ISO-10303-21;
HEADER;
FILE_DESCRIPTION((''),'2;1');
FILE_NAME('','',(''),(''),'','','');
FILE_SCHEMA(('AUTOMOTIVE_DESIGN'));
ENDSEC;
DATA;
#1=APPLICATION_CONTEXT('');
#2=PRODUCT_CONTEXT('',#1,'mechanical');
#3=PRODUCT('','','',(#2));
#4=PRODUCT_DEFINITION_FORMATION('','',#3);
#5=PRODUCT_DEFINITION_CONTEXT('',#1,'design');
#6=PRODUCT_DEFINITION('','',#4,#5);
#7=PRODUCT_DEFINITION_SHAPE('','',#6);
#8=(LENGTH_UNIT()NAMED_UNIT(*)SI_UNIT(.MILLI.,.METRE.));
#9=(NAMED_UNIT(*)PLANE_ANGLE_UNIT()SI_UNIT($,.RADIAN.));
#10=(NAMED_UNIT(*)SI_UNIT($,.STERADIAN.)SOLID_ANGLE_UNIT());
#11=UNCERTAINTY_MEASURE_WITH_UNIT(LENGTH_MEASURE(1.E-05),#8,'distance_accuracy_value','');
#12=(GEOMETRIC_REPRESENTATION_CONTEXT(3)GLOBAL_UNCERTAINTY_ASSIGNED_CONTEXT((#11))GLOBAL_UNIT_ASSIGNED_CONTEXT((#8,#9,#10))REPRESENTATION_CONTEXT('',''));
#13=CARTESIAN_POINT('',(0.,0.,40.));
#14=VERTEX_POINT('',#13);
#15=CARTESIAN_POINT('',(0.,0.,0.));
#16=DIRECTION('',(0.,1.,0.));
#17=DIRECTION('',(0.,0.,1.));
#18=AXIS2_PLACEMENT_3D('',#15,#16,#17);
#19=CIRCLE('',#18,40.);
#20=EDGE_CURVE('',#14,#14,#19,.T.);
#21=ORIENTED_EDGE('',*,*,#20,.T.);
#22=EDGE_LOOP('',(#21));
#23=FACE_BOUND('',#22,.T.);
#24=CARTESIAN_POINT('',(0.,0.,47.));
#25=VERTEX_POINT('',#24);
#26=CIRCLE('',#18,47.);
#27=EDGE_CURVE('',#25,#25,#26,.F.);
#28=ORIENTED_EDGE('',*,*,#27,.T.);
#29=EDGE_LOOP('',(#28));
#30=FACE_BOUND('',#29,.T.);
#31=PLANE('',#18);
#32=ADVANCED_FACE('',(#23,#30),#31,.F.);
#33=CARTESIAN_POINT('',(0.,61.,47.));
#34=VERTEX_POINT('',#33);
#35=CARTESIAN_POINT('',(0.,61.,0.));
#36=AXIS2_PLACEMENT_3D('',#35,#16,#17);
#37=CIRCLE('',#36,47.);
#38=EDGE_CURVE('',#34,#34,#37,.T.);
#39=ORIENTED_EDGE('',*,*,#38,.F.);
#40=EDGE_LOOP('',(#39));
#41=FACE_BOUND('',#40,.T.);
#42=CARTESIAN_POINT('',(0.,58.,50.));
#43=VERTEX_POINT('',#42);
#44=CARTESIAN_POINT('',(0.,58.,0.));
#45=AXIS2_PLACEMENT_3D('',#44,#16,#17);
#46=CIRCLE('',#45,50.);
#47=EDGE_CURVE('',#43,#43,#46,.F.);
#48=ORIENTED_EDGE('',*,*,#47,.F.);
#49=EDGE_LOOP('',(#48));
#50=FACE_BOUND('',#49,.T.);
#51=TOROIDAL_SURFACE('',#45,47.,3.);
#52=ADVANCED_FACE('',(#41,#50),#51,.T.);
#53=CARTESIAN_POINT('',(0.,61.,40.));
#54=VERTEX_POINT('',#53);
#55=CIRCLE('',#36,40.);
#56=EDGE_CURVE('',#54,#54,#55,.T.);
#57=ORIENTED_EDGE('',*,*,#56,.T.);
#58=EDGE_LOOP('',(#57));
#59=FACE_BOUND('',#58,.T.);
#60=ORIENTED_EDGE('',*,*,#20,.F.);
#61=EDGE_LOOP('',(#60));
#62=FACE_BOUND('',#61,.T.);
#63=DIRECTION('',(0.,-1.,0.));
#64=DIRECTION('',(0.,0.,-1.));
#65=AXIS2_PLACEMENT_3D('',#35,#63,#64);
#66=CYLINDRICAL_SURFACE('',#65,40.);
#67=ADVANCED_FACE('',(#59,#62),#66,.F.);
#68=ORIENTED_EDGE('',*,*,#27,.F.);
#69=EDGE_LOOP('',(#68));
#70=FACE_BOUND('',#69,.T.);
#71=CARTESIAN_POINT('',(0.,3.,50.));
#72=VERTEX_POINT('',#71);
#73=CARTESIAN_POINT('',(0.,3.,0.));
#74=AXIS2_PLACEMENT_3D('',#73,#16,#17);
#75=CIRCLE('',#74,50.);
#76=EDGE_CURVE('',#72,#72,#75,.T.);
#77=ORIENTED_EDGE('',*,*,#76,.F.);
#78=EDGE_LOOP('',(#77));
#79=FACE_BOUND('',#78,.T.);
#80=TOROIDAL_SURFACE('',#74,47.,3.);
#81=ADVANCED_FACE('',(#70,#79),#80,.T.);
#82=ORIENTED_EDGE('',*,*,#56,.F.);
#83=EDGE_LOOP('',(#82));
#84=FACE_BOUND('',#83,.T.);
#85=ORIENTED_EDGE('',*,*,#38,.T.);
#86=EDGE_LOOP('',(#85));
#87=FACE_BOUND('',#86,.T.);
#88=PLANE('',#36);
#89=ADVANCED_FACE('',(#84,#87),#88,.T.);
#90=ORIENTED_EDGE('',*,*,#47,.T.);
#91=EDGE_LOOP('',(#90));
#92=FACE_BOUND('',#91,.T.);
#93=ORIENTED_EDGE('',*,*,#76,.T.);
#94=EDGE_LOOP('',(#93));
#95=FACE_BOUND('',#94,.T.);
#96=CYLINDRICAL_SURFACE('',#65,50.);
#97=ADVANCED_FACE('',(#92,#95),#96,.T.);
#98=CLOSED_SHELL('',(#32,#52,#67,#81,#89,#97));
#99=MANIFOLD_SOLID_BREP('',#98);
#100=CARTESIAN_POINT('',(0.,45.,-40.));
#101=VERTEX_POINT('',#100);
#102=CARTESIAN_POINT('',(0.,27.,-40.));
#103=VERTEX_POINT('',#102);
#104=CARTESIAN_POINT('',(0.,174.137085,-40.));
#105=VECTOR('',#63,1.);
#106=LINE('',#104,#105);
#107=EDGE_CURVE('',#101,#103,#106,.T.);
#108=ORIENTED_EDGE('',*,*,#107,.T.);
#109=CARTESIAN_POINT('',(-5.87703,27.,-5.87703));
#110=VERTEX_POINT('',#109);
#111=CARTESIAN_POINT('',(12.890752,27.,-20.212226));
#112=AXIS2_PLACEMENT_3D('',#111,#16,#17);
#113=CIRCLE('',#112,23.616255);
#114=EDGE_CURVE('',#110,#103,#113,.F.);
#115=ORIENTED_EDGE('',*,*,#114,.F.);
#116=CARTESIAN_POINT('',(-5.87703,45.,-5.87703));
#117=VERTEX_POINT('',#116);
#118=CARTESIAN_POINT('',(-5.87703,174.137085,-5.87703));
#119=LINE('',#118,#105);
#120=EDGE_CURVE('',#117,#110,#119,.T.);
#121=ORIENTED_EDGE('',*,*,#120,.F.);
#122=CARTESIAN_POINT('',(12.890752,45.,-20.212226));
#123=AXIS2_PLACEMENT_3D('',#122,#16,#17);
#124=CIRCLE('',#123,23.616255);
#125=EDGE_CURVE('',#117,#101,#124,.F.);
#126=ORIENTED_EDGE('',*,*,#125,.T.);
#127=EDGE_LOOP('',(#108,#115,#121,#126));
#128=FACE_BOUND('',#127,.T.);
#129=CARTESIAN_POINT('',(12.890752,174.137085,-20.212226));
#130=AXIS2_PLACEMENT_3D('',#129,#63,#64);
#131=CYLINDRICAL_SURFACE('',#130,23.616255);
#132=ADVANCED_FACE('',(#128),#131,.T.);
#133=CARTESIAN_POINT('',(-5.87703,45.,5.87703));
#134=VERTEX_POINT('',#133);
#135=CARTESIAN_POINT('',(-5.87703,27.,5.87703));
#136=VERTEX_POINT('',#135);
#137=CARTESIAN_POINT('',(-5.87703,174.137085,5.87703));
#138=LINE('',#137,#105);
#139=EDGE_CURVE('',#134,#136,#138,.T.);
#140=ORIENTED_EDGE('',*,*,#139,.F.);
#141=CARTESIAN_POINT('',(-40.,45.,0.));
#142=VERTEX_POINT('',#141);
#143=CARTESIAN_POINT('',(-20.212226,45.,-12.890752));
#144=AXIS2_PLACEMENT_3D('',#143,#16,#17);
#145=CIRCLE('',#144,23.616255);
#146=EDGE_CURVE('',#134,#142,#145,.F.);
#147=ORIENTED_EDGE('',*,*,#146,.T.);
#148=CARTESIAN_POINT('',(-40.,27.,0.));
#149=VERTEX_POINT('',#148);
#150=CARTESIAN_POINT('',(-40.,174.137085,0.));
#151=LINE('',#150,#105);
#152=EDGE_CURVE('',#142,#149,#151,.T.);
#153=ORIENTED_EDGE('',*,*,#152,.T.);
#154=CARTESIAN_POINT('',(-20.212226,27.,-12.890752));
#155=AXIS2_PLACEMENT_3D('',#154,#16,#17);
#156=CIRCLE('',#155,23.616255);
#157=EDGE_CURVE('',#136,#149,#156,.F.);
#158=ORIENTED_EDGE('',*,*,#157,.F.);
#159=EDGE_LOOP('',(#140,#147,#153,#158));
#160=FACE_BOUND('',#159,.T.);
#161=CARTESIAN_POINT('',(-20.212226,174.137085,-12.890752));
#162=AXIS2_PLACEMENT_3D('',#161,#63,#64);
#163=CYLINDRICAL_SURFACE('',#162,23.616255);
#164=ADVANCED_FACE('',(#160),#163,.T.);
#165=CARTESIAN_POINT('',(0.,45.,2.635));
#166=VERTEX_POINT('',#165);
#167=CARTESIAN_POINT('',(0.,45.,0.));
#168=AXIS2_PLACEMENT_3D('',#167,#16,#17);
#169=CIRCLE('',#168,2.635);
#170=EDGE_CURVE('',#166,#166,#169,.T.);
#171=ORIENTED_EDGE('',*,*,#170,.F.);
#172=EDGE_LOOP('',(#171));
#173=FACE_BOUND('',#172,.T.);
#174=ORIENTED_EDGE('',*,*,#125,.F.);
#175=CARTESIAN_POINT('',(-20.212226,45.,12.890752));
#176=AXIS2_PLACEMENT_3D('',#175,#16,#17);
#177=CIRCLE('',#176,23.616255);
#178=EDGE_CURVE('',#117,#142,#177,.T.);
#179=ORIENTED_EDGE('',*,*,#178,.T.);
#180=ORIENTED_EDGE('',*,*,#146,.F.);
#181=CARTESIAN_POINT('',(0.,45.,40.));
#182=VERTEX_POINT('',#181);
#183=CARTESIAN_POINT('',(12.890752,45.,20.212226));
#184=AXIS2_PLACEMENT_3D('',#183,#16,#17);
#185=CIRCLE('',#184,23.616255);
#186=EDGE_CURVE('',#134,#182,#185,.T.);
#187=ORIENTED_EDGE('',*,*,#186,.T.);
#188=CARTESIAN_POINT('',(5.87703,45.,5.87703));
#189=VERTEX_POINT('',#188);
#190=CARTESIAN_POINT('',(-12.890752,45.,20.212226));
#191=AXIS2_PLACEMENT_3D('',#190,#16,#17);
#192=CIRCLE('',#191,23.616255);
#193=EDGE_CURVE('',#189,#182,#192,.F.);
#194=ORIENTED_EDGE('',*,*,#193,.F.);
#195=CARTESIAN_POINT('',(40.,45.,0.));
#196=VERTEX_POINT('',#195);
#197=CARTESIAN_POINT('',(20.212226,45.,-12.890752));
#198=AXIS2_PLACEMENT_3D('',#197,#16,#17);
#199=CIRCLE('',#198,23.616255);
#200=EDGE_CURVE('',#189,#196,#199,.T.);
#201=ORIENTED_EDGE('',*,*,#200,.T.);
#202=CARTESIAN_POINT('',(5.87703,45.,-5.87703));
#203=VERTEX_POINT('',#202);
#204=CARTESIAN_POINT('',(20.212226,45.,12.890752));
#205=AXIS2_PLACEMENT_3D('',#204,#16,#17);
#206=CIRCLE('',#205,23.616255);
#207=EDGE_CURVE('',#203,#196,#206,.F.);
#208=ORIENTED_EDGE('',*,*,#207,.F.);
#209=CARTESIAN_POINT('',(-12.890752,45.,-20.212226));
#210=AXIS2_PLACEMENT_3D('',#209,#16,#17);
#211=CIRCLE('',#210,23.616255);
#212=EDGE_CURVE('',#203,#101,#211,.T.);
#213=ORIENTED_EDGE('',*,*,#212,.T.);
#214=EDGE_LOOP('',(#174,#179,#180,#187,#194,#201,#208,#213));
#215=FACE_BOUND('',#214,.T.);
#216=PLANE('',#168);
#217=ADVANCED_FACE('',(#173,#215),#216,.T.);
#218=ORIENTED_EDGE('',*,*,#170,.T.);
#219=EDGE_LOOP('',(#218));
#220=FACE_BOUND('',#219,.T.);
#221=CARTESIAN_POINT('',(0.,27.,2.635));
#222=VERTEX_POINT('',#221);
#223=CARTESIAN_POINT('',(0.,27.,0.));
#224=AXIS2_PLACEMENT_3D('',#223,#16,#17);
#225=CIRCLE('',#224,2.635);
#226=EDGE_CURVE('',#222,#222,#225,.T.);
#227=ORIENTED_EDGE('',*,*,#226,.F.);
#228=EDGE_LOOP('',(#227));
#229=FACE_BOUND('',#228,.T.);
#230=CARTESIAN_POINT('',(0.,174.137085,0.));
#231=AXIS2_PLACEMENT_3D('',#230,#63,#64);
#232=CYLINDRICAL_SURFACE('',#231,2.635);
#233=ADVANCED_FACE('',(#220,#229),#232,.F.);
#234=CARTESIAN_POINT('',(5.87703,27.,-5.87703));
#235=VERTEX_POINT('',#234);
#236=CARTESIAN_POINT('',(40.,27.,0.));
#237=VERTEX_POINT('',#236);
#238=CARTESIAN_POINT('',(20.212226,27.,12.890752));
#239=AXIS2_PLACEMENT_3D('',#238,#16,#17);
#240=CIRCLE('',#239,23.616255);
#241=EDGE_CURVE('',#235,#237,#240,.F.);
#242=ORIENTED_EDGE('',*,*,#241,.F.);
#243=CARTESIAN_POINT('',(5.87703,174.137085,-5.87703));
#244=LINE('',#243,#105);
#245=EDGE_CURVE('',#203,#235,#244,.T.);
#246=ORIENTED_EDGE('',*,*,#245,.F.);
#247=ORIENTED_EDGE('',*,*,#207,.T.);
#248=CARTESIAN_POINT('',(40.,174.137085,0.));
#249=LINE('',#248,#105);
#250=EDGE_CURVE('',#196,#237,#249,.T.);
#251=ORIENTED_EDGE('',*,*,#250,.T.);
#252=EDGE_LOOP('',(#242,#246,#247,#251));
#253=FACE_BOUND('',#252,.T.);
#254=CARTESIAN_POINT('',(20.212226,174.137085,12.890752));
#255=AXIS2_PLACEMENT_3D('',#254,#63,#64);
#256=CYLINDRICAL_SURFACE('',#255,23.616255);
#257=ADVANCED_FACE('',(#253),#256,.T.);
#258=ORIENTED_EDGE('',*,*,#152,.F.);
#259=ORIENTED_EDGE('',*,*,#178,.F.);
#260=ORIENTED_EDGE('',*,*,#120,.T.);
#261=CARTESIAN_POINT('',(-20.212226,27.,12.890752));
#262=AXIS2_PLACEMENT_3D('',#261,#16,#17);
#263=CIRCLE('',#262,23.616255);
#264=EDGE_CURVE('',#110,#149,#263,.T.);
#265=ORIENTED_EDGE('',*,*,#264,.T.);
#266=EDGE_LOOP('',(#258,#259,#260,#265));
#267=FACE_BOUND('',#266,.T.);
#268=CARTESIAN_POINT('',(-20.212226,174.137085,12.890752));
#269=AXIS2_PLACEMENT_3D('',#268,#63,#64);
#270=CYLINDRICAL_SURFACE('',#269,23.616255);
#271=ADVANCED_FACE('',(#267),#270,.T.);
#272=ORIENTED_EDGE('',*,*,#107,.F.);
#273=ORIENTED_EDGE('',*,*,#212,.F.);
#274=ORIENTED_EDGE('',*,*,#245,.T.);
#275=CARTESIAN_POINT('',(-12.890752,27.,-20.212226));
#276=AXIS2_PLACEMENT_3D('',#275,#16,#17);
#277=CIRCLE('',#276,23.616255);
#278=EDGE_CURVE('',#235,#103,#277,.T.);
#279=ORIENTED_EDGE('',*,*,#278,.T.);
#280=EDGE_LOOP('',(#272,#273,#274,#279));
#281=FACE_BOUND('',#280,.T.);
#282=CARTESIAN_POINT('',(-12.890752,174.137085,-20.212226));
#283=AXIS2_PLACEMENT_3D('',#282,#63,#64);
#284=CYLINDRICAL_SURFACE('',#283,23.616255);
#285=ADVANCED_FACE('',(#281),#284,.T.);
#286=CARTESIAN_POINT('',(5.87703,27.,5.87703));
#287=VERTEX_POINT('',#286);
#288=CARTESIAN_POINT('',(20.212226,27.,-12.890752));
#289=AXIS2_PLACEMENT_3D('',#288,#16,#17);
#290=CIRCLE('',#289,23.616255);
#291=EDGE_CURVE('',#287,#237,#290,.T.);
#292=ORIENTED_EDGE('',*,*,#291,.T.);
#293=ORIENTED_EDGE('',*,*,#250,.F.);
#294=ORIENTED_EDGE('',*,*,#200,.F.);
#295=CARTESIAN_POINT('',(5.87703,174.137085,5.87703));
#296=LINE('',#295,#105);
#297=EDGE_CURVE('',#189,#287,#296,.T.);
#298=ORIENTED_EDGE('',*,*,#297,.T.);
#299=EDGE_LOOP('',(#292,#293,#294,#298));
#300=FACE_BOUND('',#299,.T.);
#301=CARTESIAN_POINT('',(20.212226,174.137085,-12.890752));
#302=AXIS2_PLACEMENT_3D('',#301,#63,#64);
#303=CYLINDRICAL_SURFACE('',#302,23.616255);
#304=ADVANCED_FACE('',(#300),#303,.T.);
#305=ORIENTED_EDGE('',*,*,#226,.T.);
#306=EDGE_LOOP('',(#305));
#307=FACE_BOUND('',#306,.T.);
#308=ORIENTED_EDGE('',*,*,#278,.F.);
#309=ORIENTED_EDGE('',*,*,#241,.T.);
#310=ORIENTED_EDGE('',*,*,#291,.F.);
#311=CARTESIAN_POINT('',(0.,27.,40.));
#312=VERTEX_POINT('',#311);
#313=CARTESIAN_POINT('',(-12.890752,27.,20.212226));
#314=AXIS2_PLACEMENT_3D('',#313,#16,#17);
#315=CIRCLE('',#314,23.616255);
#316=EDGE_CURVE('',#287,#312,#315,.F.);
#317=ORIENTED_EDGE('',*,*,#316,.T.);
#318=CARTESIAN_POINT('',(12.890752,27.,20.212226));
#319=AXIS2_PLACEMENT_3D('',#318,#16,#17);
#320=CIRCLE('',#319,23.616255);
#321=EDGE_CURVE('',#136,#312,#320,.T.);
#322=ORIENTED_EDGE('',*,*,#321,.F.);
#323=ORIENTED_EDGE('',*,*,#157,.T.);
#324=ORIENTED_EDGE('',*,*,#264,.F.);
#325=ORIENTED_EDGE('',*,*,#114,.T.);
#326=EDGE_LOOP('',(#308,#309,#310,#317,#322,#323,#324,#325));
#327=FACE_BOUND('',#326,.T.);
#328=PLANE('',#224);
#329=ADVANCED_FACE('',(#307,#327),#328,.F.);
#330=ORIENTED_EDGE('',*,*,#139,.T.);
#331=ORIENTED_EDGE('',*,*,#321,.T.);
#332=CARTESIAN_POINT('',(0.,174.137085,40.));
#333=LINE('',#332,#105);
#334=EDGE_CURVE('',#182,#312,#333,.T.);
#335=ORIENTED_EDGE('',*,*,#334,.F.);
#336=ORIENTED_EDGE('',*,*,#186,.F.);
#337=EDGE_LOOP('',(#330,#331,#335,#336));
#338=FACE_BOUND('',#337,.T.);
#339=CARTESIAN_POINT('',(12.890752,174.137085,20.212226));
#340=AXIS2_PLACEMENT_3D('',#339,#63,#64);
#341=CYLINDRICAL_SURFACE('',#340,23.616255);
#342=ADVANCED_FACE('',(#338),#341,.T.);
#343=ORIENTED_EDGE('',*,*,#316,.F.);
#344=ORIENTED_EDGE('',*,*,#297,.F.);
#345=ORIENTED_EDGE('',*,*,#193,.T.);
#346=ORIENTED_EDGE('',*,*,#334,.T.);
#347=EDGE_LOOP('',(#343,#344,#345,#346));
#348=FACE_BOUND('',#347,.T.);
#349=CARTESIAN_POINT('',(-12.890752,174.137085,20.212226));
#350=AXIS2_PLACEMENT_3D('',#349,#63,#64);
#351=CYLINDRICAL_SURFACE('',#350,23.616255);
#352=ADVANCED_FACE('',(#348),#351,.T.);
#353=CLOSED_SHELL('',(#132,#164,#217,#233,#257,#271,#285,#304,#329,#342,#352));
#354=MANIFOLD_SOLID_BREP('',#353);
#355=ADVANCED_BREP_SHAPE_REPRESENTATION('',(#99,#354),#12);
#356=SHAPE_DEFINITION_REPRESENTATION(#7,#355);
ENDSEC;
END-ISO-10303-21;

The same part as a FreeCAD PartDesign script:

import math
import FreeCAD as App
import Part
import Sketcher
from FreeCAD import Vector
Q = App.Units.Quantity


def edges_at(feature, points):
    """Names of the edges that pass closest to the given points."""
    edges = feature.Shape.Edges
    near = lambda p: min(range(len(edges)), key=lambda i: edges[i].distToShape(Part.Vertex(*p))[0])
    return sorted({f"Edge{near(p) + 1}" for p in points})

doc = App.newDocument("Part")
body = doc.addObject("PartDesign::Body", "Body")

sketch1 = doc.addObject("Sketcher::SketchObject", "Sketch")
body.addObject(sketch1)
sketch1.AttachmentSupport = (doc.XZ_Plane, [""])
sketch1.MapMode = "FlatFace"
sketch1.addGeometry(Part.Circle(Vector(0, 0, 0), Vector(0, 0, 1), 50), False)
sketch1.addGeometry(Part.Circle(Vector(0, 0, 0), Vector(0, 0, 1), 40), False)
sketch1.addConstraint(Sketcher.Constraint("Coincident", 0, 3, -1, 1))
sketch1.addConstraint(Sketcher.Constraint("Coincident", 1, 3, -1, 1))
sketch1.addConstraint(Sketcher.Constraint("Diameter", 0, Q("100 mm")))
sketch1.addConstraint(Sketcher.Constraint("Diameter", 1, Q("80 mm")))
pad1 = doc.addObject("PartDesign::Pad", "Pad")
body.addObject(pad1)
pad1.Profile = sketch1
pad1.Length = 61
pad1.Reversed = True
doc.recompute()

fillet = doc.addObject("PartDesign::Fillet", "Fillet")
body.addObject(fillet)
fillet.Base = (pad1, edges_at(pad1, [(-50, 61, 0), (-50, 0, 0)]))
fillet.Radius = 3
body2 = doc.addObject("PartDesign::Body", "Body001")

sketch2 = doc.addObject("Sketcher::SketchObject", "Sketch001")
body2.addObject(sketch2)
sketch2.AttachmentSupport = (doc.getObject("XZ_Plane001"), [""])
sketch2.MapMode = "FlatFace"
sketch2.AttachmentOffset = App.Placement(Vector(0, 0, -27), App.Rotation())
sketch2.addGeometry(Part.ArcOfCircle(Part.Circle(Vector(20.2, 12.9, 0), Vector(0, 0, 1), 23.6), math.radians(-127), math.radians(-33)), False)
sketch2.addGeometry(Part.ArcOfCircle(Part.Circle(Vector(-12.9, -20.2, 0), Vector(0, 0, 1), 23.6), math.radians(-57), math.radians(37)), False)
sketch2.addGeometry(Part.ArcOfCircle(Part.Circle(Vector(12.9, -20.2, 0), Vector(0, 0, 1), 23.6), math.radians(143), math.radians(237)), False)
sketch2.addGeometry(Part.ArcOfCircle(Part.Circle(Vector(-20.2, 12.9, 0), Vector(0, 0, 1), 23.6), math.radians(-147), math.radians(-53)), False)
sketch2.addGeometry(Part.ArcOfCircle(Part.Circle(Vector(-20.2, -12.9, 0), Vector(0, 0, 1), 23.6), math.radians(53), math.radians(147)), False)
sketch2.addGeometry(Part.ArcOfCircle(Part.Circle(Vector(12.9, 20.2, 0), Vector(0, 0, 1), 23.6), math.radians(123), math.radians(217)), False)
sketch2.addGeometry(Part.ArcOfCircle(Part.Circle(Vector(-12.9, 20.2, 0), Vector(0, 0, 1), 23.6), math.radians(-37), math.radians(57)), False)
sketch2.addGeometry(Part.ArcOfCircle(Part.Circle(Vector(20.2, -12.9, 0), Vector(0, 0, 1), 23.6), math.radians(33), math.radians(127)), False)
sketch2.addGeometry(Part.Circle(Vector(0, 0, 0), Vector(0, 0, 1), 2.6), False)
sketch2.addConstraint(Sketcher.Constraint("Coincident", 0, 1, 1, 2))
sketch2.addConstraint(Sketcher.Constraint("Coincident", 1, 1, 2, 2))
sketch2.addConstraint(Sketcher.Constraint("Coincident", 2, 1, 3, 2))
sketch2.addConstraint(Sketcher.Constraint("Coincident", 3, 1, 4, 2))
sketch2.addConstraint(Sketcher.Constraint("Coincident", 4, 1, 5, 2))
sketch2.addConstraint(Sketcher.Constraint("Coincident", 5, 1, 6, 2))
sketch2.addConstraint(Sketcher.Constraint("Coincident", 6, 1, 7, 2))
sketch2.addConstraint(Sketcher.Constraint("Coincident", 7, 1, 0, 2))
sketch2.addConstraint(Sketcher.Constraint("Coincident", 8, 3, -1, 1))
sketch2.addConstraint(Sketcher.Constraint("Equal", 0, 1))
sketch2.addConstraint(Sketcher.Constraint("Equal", 1, 2))
sketch2.addConstraint(Sketcher.Constraint("Equal", 2, 3))
sketch2.addConstraint(Sketcher.Constraint("Equal", 3, 4))
sketch2.addConstraint(Sketcher.Constraint("Equal", 4, 5))
sketch2.addConstraint(Sketcher.Constraint("Equal", 5, 6))
sketch2.addConstraint(Sketcher.Constraint("Equal", 6, 7))
sketch2.addConstraint(Sketcher.Constraint("Symmetric", 0, 3, 4, 3, -1, 1))
sketch2.addConstraint(Sketcher.Constraint("Symmetric", 1, 3, 5, 3, -1, 1))
sketch2.addConstraint(Sketcher.Constraint("Symmetric", 2, 3, 6, 3, -1, 1))
sketch2.addConstraint(Sketcher.Constraint("Symmetric", 3, 3, 7, 3, -1, 1))
sketch2.addConstraint(Sketcher.Constraint("Symmetric", 1, 3, 2, 3, -2))
sketch2.addConstraint(Sketcher.Constraint("Symmetric", 0, 3, 3, 3, -2))
sketch2.addConstraint(Sketcher.Constraint("Diameter", 8, Q("5.27 mm")))
sketch2.addConstraint(Sketcher.Constraint("DistanceY", 1, 1, -1, 1, Q("40 mm")))
sketch2.addConstraint(Sketcher.Constraint("DistanceX", 3, 1, -1, 1, Q("40 mm")))
sketch2.addConstraint(Sketcher.Constraint("Radius", 0, Q("23.616255 mm")))
sketch2.addConstraint(Sketcher.Constraint("DistanceY", -1, 1, 0, 3, Q("12.890752 mm")))
sketch2.addConstraint(Sketcher.Constraint("DistanceX", 1, 3, -1, 1, Q("12.890752 mm")))
pad2 = doc.addObject("PartDesign::Pad", "Pad001")
body2.addObject(pad2)
pad2.Profile = sketch2
pad2.Length = 18
pad2.Reversed = True

doc.recompute()
